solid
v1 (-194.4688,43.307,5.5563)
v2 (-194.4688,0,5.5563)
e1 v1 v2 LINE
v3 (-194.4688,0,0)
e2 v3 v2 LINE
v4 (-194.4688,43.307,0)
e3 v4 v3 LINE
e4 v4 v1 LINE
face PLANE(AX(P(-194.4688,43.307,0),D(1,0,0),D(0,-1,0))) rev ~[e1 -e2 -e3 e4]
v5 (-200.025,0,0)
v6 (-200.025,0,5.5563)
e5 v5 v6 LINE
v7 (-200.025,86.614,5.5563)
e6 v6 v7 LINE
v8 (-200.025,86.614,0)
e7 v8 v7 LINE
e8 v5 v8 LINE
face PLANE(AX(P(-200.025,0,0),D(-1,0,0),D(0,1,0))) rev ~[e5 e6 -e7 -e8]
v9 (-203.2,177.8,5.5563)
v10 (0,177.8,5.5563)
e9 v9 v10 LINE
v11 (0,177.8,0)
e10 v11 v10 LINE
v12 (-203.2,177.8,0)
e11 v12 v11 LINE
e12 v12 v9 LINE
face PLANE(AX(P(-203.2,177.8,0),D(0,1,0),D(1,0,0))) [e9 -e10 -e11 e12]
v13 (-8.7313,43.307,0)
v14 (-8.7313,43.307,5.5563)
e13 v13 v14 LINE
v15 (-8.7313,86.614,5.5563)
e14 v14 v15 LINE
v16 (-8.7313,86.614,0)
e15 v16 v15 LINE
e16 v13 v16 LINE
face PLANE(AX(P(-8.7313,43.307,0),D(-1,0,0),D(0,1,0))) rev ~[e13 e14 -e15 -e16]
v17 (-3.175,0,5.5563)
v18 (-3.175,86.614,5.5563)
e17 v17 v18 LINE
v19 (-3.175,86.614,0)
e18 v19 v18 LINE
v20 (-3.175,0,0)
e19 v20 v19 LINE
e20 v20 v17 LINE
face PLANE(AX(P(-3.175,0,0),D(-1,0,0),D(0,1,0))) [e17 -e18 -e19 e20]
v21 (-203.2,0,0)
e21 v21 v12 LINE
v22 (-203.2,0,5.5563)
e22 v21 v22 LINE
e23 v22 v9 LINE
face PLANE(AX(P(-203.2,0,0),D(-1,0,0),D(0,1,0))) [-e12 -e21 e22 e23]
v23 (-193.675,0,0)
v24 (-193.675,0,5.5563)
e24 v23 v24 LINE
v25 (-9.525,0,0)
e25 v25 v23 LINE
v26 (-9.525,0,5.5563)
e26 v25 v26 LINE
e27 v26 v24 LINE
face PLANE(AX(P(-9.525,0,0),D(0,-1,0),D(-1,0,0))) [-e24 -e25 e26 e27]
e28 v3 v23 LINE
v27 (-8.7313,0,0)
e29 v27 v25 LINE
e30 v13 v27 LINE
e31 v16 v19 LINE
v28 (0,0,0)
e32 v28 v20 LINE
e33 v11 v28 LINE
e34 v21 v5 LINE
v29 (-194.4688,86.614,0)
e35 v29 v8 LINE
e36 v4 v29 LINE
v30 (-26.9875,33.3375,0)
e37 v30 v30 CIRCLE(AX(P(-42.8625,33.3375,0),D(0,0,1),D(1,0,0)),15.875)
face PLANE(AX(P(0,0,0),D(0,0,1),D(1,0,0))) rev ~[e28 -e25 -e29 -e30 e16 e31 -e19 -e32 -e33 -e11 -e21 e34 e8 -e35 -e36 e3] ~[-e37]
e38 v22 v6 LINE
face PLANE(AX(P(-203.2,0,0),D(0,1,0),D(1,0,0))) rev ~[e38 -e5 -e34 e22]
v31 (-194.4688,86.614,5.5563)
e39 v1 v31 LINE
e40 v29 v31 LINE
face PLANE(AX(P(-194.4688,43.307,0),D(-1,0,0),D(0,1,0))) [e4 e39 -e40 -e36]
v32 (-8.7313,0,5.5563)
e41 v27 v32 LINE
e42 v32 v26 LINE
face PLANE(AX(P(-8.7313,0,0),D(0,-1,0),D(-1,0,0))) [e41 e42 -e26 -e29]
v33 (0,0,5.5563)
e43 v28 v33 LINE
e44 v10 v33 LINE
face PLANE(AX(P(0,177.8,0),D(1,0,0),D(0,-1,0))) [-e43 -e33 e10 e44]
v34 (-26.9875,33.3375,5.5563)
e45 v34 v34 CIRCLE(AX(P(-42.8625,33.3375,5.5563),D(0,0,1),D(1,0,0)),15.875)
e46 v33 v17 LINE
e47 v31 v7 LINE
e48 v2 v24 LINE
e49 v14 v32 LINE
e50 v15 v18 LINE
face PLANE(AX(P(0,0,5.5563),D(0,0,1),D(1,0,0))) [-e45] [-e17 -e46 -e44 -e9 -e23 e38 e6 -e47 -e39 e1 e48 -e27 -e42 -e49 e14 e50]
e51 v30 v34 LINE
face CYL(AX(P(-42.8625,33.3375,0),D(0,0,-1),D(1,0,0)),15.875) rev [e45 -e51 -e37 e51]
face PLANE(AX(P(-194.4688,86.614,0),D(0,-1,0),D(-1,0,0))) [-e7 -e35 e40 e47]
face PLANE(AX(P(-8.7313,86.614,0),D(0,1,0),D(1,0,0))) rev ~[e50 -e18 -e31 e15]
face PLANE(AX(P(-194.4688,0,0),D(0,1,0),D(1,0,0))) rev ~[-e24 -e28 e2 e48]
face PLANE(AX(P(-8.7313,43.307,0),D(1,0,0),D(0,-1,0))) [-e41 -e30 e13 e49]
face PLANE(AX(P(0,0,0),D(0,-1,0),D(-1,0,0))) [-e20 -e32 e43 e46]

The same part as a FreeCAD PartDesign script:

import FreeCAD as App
import Part
import Sketcher
from FreeCAD import Vector
Q = App.Units.Quantity


def add_polygon(sketch, points):
    """Adds a closed chain of lines whose ends are joined by coincident constraints."""
    first, n = sketch.GeometryCount, len(points)
    for a, b in zip(points, points[1:] + points[:1]):
        sketch.addGeometry(Part.LineSegment(App.Vector(*a, 0), App.Vector(*b, 0)), False)
    for i in range(n):
        sketch.addConstraint(Sketcher.Constraint("Coincident", first + i, 2, first + (i + 1) % n, 1))

doc = App.newDocument("Part")
body = doc.addObject("PartDesign::Body", "Body")

# Sketch on XY plane
sketch1 = doc.addObject("Sketcher::SketchObject", "Sketch")
body.addObject(sketch1)
sketch1.AttachmentSupport = (doc.XY_Plane, [""])
sketch1.MapMode = "FlatFace"
add_polygon(sketch1, [(-203.2, 177.8), (-203.2, 0), (-200, 0), (-200, 86.6), (-194.5, 86.6), (-194.5, 0), (-8.7, 0), (-8.7, 86.6), (-3.2, 86.6), (-3.2, 0), (0, 0), (0, 177.8)])  # lines 0-11
sketch1.addGeometry(Part.Circle(Vector(-42.9, 33.3, 0), Vector(0, 0, 1), 15.9), False)  # 12
sketch1.addConstraint([
    Sketcher.Constraint("Vertical", 0),
    Sketcher.Constraint("Horizontal", 1),
    Sketcher.Constraint("Vertical", 2),
    Sketcher.Constraint("Horizontal", 3),
    Sketcher.Constraint("Vertical", 4),
    Sketcher.Constraint("Horizontal", 5),
    Sketcher.Constraint("Vertical", 6),
    Sketcher.Constraint("Horizontal", 7),
    Sketcher.Constraint("Vertical", 8),
    Sketcher.Constraint("Horizontal", 9),
    Sketcher.Constraint("Vertical", 10),
    Sketcher.Constraint("Horizontal", 11),
    Sketcher.Constraint("Coincident", 9, 2, -1, 1),
    Sketcher.Constraint("PointOnObject", 0, 2, -1),
    Sketcher.Constraint("PointOnObject", 4, 2, -1),
    Sketcher.Constraint("Horizontal", 3, 2, 6, 2),
    Sketcher.Constraint("Equal", 3, 7),
    Sketcher.Constraint("Equal", 1, 9),
    Sketcher.Constraint("Diameter", 12, Q("1.25 in")),
    Sketcher.Constraint("DistanceX", 11, 2, 11, 1, Q("8 in")),
    Sketcher.Constraint("DistanceY", 0, 2, 0, 1, Q("7 in")),
    Sketcher.Constraint("DistanceY", 2, 1, 2, 2, Q("3.41 in")),
    Sketcher.Constraint("DistanceX", 1, 1, 1, 2, Q("0.125 in")),
    Sketcher.Constraint("DistanceX", 3, 1, 3, 2, Q("0.218748 in")),
    Sketcher.Constraint("DistanceX", 12, 3, -1, 1, Q("1.6875 in")),
    Sketcher.Constraint("DistanceY", -1, 1, 12, 3, Q("1.3125 in")),
])
pad1 = doc.addObject("PartDesign::Pad", "Pad")
body.addObject(pad1)
pad1.Profile = sketch1
pad1.Length = Q("0.218752 in")

doc.recompute()
